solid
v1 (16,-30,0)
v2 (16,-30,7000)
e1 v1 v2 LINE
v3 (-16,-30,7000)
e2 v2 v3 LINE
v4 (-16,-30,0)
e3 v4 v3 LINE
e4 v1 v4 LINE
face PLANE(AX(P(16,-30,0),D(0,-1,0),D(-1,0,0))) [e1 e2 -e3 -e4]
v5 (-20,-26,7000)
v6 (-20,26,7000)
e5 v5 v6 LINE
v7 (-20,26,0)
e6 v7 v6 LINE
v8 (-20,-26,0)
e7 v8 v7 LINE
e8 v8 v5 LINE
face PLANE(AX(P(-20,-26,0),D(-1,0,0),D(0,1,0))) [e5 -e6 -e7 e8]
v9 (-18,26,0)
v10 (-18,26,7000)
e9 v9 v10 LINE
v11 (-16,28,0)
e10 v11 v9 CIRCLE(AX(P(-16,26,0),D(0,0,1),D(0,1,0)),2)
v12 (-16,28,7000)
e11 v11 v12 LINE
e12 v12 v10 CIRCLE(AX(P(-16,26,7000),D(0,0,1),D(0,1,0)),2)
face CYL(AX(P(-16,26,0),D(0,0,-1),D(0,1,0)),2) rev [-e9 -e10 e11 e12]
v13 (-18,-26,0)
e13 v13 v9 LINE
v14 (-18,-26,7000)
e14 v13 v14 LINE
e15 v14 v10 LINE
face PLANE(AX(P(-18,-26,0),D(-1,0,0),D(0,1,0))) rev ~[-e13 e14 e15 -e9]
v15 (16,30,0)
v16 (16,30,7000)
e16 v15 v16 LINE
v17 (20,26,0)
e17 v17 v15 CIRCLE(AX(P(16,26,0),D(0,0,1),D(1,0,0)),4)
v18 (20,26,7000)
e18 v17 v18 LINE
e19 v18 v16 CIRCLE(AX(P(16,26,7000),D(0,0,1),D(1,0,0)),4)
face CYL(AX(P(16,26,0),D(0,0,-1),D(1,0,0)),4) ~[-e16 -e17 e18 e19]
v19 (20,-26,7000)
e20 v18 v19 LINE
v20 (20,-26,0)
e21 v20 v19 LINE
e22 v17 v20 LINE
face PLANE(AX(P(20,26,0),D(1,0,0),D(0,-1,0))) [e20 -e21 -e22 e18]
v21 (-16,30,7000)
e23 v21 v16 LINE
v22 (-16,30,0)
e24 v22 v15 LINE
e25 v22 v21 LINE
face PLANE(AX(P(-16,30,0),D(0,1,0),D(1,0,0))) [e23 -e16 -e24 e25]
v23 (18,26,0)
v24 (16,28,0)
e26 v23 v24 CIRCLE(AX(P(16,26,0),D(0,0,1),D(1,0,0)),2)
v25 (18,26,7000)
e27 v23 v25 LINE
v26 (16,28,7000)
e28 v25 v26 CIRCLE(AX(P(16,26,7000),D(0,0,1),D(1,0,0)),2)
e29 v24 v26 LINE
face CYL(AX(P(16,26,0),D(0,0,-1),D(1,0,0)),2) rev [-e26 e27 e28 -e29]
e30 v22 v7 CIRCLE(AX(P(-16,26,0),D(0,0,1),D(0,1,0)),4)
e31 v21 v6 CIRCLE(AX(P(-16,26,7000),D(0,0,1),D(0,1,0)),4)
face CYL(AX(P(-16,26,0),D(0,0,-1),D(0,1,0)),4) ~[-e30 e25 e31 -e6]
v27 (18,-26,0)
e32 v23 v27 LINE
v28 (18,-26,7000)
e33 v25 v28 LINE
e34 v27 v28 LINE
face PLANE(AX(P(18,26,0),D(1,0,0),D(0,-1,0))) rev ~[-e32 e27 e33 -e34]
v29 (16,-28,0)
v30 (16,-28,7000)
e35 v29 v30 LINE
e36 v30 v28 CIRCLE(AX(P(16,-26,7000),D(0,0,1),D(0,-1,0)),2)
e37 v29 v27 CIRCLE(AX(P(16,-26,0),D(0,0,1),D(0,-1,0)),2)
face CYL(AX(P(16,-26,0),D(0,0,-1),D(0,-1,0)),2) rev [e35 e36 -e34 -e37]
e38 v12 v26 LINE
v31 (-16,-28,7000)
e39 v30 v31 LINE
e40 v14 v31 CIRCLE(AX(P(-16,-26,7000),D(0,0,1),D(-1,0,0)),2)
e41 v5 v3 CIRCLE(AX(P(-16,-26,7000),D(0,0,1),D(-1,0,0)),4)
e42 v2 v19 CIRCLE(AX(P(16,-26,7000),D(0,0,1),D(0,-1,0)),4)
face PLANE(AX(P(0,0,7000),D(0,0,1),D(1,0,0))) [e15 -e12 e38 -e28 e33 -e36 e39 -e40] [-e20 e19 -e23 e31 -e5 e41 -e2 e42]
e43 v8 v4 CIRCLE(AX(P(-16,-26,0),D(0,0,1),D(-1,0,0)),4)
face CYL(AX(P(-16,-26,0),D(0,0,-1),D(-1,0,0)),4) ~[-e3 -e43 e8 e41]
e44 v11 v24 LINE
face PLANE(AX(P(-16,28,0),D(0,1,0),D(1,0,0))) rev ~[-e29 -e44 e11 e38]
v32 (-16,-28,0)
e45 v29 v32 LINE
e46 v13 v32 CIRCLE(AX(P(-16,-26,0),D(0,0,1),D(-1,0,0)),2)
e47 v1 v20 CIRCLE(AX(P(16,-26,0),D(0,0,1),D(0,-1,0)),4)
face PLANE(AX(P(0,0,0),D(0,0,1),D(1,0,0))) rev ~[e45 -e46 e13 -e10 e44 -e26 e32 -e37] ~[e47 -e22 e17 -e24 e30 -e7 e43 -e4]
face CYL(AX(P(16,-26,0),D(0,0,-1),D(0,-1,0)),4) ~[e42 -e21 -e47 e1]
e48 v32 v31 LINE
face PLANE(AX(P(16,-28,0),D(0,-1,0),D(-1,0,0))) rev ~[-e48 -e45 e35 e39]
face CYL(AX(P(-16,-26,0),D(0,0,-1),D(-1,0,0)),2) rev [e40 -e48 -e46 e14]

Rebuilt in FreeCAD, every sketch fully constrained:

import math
import FreeCAD as App
import Part
import Sketcher

doc = App.newDocument("Part")
body = doc.addObject("PartDesign::Body", "Body")

# Sketch on XY plane
sketch1 = body.newObject("Sketcher::SketchObject", "Sketch")
sketch1.AttachmentSupport = (doc.getObject("XY_Plane"), [""])
sketch1.MapMode = "FlatFace"
sketch1.addGeometry([
    Part.LineSegment(App.Vector(-20, 26, 0), App.Vector(-20, -26, 0)),  # 0
    Part.ArcOfCircle(Part.Circle(App.Vector(-16, -26, 0), App.Vector(0, 0, 1), 4), math.radians(180), math.radians(270)),  # 1
    Part.LineSegment(App.Vector(-16, -30, 0), App.Vector(16, -30, 0)),  # 2
    Part.ArcOfCircle(Part.Circle(App.Vector(16, -26, 0), App.Vector(0, 0, 1), 4), math.radians(-90), math.radians(0)),  # 3
    Part.LineSegment(App.Vector(20, -26, 0), App.Vector(20, 26, 0)),  # 4
    Part.ArcOfCircle(Part.Circle(App.Vector(16, 26, 0), App.Vector(0, 0, 1), 4), math.radians(0), math.radians(90)),  # 5
    Part.LineSegment(App.Vector(16, 30, 0), App.Vector(-16, 30, 0)),  # 6
    Part.ArcOfCircle(Part.Circle(App.Vector(-16, 26, 0), App.Vector(0, 0, 1), 4), math.radians(90), math.radians(180)),  # 7
    Part.ArcOfCircle(Part.Circle(App.Vector(-16, 26, 0), App.Vector(0, 0, 1), 2), math.radians(90), math.radians(180)),  # 8
    Part.LineSegment(App.Vector(-16, 28, 0), App.Vector(16, 28, 0)),  # 9
    Part.ArcOfCircle(Part.Circle(App.Vector(16, 26, 0), App.Vector(0, 0, 1), 2), math.radians(0), math.radians(90)),  # 10
    Part.LineSegment(App.Vector(18, 26, 0), App.Vector(18, -26, 0)),  # 11
    Part.ArcOfCircle(Part.Circle(App.Vector(16, -26, 0), App.Vector(0, 0, 1), 2), math.radians(-90), math.radians(0)),  # 12
    Part.LineSegment(App.Vector(16, -28, 0), App.Vector(-16, -28, 0)),  # 13
    Part.ArcOfCircle(Part.Circle(App.Vector(-16, -26, 0), App.Vector(0, 0, 1), 2), math.radians(180), math.radians(270)),  # 14
    Part.LineSegment(App.Vector(-18, -26, 0), App.Vector(-18, 26, 0)),  # 15
], False)
sketch1.addConstraint([
    Sketcher.Constraint("Tangent", 0, 2, 1, 1),
    Sketcher.Constraint("Tangent", 1, 2, 2, 1),
    Sketcher.Constraint("Tangent", 2, 2, 3, 1),
    Sketcher.Constraint("Tangent", 3, 2, 4, 1),
    Sketcher.Constraint("Tangent", 4, 2, 5, 1),
    Sketcher.Constraint("Tangent", 5, 2, 6, 1),
    Sketcher.Constraint("Tangent", 6, 2, 7, 1),
    Sketcher.Constraint("Tangent", 7, 2, 0, 1),
    Sketcher.Constraint("Tangent", 8, 1, 9, 1),
    Sketcher.Constraint("Tangent", 9, 2, 10, 2),
    Sketcher.Constraint("Tangent", 10, 1, 11, 1),
    Sketcher.Constraint("Tangent", 11, 2, 12, 2),
    Sketcher.Constraint("Tangent", 12, 1, 13, 1),
    Sketcher.Constraint("Tangent", 13, 2, 14, 2),
    Sketcher.Constraint("Tangent", 14, 1, 15, 1),
    Sketcher.Constraint("Tangent", 15, 2, 8, 2),
    Sketcher.Constraint("Vertical", 0),
    Sketcher.Constraint("Horizontal", 2),
    Sketcher.Constraint("Vertical", 4),
    Sketcher.Constraint("Horizontal", 6),
    Sketcher.Constraint("Horizontal", 9),
    Sketcher.Constraint("Vertical", 11),
    Sketcher.Constraint("Horizontal", 13),
    Sketcher.Constraint("Vertical", 15),
    Sketcher.Constraint("Coincident", 8, 3, 7, 3),
    Sketcher.Constraint("Coincident", 10, 3, 5, 3),
    Sketcher.Constraint("Coincident", 12, 3, 3, 3),
    Sketcher.Constraint("Equal", 1, 3),
    Sketcher.Constraint("Equal", 3, 5),
    Sketcher.Constraint("Equal", 5, 7),
    Sketcher.Constraint("Equal", 12, 14),
    Sketcher.Constraint("Symmetric", 1, 3, 5, 3, -1, 1),
    Sketcher.Constraint("Radius", 1, 4.0),
    Sketcher.Constraint("Radius", 8, 2.0),
    Sketcher.Constraint("DistanceX", 0, 2, -1, 1, 20.0),
    Sketcher.Constraint("DistanceY", 1, 2, -1, 1, 30.0),
])
pad1 = body.newObject("PartDesign::Pad", "Pad")
pad1.Profile = sketch1
pad1.Length = 7000

doc.recompute()
